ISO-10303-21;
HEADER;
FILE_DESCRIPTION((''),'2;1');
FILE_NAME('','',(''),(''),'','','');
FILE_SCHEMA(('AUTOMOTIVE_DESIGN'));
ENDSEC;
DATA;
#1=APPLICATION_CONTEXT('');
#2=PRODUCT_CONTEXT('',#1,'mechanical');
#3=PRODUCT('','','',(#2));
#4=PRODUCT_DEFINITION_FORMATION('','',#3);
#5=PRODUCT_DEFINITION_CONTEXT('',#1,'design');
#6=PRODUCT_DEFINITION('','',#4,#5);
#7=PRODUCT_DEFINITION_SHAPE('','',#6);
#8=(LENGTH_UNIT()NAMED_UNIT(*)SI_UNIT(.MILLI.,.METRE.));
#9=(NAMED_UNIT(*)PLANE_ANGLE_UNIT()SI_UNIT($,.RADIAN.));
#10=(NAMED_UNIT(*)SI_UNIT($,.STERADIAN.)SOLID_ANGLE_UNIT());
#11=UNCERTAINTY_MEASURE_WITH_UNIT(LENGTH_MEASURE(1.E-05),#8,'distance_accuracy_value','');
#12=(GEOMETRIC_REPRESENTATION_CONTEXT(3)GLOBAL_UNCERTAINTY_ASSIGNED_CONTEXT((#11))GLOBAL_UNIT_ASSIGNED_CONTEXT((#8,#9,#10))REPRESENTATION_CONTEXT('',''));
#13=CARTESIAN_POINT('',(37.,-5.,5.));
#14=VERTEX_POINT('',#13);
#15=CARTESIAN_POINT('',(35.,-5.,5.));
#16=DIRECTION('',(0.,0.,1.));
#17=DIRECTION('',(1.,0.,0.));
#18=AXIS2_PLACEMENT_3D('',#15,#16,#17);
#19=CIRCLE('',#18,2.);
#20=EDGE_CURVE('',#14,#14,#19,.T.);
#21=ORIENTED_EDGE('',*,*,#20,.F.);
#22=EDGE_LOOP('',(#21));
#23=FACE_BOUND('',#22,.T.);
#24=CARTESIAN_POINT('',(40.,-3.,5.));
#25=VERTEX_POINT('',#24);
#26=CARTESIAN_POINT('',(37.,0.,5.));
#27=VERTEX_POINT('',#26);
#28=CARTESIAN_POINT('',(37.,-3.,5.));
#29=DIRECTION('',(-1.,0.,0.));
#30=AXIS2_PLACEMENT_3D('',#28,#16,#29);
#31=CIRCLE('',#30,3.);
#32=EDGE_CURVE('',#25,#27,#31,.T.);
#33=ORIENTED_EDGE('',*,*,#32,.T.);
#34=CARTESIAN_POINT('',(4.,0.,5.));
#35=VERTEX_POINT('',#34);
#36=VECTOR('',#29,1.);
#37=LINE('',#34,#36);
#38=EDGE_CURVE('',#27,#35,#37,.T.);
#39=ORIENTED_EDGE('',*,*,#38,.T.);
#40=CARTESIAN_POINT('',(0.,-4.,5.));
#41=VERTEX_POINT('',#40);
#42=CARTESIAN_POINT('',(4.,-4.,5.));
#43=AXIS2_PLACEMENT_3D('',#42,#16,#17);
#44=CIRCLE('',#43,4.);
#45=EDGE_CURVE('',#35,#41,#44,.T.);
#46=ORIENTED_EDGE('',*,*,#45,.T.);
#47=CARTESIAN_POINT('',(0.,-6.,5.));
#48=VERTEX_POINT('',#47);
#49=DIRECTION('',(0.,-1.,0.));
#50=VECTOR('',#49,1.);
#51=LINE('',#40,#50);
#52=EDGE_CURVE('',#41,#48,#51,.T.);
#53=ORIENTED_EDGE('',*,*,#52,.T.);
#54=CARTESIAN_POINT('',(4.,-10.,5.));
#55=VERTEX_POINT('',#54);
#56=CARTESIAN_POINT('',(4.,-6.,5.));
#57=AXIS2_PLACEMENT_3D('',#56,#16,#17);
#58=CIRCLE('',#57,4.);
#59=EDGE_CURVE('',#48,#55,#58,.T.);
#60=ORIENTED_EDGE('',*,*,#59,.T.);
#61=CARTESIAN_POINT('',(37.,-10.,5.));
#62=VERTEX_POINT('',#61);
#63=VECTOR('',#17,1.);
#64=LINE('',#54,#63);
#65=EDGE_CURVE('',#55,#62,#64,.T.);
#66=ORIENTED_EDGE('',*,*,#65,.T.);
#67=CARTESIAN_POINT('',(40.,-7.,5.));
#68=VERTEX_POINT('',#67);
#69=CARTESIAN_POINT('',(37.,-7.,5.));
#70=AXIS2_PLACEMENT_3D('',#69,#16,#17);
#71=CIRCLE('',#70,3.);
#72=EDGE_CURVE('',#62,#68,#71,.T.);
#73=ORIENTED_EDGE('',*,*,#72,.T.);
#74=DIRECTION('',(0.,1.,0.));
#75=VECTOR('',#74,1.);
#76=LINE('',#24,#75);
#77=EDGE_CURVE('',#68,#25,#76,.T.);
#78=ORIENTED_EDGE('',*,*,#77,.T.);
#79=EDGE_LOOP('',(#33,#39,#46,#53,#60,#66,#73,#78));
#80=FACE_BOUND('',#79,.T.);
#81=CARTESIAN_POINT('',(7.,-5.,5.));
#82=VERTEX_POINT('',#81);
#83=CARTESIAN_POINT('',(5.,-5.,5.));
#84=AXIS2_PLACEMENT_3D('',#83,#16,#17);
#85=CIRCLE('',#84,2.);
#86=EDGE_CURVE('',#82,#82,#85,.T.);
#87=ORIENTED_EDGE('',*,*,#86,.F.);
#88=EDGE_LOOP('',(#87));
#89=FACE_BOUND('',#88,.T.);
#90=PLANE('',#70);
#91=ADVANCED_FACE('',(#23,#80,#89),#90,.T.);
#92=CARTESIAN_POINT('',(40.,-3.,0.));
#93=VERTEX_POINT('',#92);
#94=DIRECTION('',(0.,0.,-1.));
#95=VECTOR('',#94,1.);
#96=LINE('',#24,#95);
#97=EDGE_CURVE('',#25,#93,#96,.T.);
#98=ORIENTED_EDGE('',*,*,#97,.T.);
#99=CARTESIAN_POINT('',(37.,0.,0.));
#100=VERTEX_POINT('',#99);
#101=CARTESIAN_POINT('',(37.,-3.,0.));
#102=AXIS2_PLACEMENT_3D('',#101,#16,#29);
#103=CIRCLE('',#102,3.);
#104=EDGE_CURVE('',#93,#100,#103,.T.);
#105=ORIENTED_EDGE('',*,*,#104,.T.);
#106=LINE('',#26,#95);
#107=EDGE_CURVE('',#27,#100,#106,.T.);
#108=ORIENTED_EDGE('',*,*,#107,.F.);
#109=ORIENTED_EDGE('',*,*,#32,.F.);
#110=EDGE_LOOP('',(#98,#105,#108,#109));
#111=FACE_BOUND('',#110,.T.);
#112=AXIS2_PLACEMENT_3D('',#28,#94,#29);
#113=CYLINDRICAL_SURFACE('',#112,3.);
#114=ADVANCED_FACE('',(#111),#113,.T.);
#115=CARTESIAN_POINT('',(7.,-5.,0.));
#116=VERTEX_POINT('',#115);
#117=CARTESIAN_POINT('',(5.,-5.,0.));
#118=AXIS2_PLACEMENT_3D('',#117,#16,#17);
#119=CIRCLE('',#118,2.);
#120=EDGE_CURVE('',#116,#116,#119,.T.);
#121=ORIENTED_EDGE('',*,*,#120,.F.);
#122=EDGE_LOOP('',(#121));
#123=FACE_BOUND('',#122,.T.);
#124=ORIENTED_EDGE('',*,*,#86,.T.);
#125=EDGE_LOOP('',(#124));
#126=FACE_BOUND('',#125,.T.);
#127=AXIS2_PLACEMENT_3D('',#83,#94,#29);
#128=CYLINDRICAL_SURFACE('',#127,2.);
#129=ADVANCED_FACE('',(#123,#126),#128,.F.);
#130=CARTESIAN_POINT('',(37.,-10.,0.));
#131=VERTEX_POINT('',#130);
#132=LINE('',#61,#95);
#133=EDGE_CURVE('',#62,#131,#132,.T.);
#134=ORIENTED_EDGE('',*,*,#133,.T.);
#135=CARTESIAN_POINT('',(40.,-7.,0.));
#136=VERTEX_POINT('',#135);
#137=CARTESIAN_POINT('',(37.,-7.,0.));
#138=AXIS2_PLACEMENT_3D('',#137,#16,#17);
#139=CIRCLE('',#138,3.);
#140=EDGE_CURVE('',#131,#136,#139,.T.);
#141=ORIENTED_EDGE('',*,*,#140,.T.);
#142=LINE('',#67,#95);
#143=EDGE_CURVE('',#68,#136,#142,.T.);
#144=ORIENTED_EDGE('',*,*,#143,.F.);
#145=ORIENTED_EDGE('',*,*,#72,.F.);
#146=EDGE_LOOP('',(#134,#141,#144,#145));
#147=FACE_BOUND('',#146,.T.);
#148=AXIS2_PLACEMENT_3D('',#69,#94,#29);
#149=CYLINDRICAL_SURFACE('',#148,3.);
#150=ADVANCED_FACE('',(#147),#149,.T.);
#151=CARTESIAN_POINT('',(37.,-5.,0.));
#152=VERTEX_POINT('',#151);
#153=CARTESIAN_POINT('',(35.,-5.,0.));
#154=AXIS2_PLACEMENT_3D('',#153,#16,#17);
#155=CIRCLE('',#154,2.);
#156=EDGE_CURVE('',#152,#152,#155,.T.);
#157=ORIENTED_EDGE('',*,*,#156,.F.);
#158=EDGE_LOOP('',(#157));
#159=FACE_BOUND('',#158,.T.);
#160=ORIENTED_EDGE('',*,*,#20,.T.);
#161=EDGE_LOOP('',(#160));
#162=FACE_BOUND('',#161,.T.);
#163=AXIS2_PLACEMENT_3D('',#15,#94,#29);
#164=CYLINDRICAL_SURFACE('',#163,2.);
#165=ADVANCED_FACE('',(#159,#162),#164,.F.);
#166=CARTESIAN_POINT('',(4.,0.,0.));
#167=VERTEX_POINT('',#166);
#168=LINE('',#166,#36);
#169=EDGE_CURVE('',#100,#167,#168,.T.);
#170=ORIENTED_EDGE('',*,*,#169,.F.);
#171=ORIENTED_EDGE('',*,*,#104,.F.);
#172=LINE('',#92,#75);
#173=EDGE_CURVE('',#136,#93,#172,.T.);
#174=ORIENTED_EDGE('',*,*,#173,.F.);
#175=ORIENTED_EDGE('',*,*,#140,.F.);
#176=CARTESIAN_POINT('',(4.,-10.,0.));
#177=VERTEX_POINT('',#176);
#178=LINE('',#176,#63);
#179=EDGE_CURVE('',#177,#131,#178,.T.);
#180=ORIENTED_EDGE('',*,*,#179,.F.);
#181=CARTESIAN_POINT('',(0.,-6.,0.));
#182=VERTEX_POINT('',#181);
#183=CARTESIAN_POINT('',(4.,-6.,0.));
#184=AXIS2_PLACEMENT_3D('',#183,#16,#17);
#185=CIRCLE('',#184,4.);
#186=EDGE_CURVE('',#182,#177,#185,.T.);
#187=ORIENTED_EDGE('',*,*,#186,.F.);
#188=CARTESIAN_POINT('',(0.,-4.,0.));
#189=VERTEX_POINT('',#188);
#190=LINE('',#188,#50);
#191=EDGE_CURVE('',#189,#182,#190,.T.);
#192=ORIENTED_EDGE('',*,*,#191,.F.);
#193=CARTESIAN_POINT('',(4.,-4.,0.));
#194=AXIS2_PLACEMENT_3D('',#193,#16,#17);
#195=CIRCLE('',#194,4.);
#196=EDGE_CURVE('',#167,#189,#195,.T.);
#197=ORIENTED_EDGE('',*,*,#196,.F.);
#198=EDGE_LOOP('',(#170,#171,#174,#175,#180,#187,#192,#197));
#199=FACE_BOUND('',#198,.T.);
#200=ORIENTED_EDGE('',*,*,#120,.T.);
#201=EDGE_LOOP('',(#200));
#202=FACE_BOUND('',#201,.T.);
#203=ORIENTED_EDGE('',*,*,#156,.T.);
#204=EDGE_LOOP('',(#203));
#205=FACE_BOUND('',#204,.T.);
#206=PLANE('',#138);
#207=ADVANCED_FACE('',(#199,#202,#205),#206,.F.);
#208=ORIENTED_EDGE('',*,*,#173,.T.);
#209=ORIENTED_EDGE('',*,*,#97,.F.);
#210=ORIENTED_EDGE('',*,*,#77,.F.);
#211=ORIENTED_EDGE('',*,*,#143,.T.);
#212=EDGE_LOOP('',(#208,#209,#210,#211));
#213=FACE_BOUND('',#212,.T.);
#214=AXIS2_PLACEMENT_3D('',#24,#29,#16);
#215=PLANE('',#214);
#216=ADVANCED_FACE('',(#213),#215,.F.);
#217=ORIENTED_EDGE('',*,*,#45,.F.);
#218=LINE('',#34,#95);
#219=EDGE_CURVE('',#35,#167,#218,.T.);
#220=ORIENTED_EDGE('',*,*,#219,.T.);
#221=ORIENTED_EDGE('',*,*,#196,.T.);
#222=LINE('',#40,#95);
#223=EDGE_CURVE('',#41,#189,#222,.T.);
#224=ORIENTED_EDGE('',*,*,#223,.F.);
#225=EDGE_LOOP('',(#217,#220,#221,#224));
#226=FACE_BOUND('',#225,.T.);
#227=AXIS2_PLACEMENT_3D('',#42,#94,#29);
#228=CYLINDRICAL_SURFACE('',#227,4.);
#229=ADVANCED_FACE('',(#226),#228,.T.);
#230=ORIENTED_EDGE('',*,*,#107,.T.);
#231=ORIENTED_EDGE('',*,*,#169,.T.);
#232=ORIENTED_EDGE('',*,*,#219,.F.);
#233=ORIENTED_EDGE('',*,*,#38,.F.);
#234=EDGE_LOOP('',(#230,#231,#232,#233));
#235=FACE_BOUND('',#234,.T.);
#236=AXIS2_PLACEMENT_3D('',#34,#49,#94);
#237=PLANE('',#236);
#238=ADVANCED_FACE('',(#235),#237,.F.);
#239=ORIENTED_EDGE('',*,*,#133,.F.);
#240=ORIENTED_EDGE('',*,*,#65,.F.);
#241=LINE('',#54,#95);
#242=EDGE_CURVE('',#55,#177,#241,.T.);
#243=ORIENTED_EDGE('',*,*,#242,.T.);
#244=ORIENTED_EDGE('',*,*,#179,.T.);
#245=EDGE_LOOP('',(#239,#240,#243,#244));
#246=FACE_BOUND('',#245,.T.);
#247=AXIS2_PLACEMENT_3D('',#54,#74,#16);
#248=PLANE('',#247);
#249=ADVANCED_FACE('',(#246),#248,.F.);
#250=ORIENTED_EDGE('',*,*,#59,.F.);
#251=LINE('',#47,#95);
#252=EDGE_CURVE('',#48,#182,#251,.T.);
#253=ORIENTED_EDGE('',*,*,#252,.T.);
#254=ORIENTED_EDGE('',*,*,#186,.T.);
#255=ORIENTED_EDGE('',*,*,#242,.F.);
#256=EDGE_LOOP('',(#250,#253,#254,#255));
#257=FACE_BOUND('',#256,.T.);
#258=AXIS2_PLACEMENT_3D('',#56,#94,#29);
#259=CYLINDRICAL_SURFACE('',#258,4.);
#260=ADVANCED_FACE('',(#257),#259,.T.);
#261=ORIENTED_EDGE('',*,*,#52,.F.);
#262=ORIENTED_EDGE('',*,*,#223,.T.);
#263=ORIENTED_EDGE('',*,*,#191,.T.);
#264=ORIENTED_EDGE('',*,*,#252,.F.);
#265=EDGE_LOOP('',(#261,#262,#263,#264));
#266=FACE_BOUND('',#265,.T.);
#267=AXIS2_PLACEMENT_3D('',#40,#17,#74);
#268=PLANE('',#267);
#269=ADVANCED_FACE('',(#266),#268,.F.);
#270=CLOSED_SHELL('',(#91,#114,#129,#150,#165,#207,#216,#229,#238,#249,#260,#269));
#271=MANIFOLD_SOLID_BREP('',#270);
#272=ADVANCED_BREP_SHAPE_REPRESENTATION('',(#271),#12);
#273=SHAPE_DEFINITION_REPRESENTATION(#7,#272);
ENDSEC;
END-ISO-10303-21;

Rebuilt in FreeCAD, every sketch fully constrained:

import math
import FreeCAD as App
import Part
import Sketcher
from FreeCAD import Vector
Q = App.Units.Quantity

doc = App.newDocument("Part")
body = doc.addObject("PartDesign::Body", "Body")

sketch1 = body.newObject("Sketcher::SketchObject", "Sketch")
sketch1.AttachmentSupport = (doc.getObject("XY_Plane"), [""])
sketch1.MapMode = "FlatFace"
sketch1.addGeometry(Part.LineSegment(Vector(37, 0, 0), Vector(4, 0, 0)), False)
sketch1.addGeometry(Part.ArcOfCircle(Part.Circle(Vector(4, -4, 0), Vector(0, 0, 1), 4), math.radians(90), math.radians(180)), False)
sketch1.addGeometry(Part.LineSegment(Vector(0, -4, 0), Vector(0, -6, 0)), False)
sketch1.addGeometry(Part.ArcOfCircle(Part.Circle(Vector(4, -6, 0), Vector(0, 0, 1), 4), math.radians(180), math.radians(270)), False)
sketch1.addGeometry(Part.LineSegment(Vector(4, -10, 0), Vector(37, -10, 0)), False)
sketch1.addGeometry(Part.ArcOfCircle(Part.Circle(Vector(37, -7, 0), Vector(0, 0, 1), 3), math.radians(-90), math.radians(0)), False)
sketch1.addGeometry(Part.LineSegment(Vector(40, -7, 0), Vector(40, -3, 0)), False)
sketch1.addGeometry(Part.ArcOfCircle(Part.Circle(Vector(37, -3, 0), Vector(0, 0, 1), 3), math.radians(0), math.radians(90)), False)
sketch1.addGeometry(Part.Circle(Vector(35, -5, 0), Vector(0, 0, 1), 2), False)
sketch1.addGeometry(Part.Circle(Vector(5, -5, 0), Vector(0, 0, 1), 2), False)
sketch1.addConstraint(Sketcher.Constraint("Tangent", 0, 2, 1, 1))
sketch1.addConstraint(Sketcher.Constraint("Tangent", 1, 2, 2, 1))
sketch1.addConstraint(Sketcher.Constraint("Tangent", 2, 2, 3, 1))
sketch1.addConstraint(Sketcher.Constraint("Tangent", 3, 2, 4, 1))
sketch1.addConstraint(Sketcher.Constraint("Tangent", 4, 2, 5, 1))
sketch1.addConstraint(Sketcher.Constraint("Tangent", 5, 2, 6, 1))
sketch1.addConstraint(Sketcher.Constraint("Tangent", 6, 2, 7, 1))
sketch1.addConstraint(Sketcher.Constraint("Tangent", 7, 2, 0, 1))
sketch1.addConstraint(Sketcher.Constraint("Horizontal", 0))
sketch1.addConstraint(Sketcher.Constraint("Vertical", 2))
sketch1.addConstraint(Sketcher.Constraint("Horizontal", 4))
sketch1.addConstraint(Sketcher.Constraint("Vertical", 6))
sketch1.addConstraint(Sketcher.Constraint("Equal", 1, 3))
sketch1.addConstraint(Sketcher.Constraint("Equal", 5, 7))
sketch1.addConstraint(Sketcher.Constraint("Equal", 8, 9))
sketch1.addConstraint(Sketcher.Constraint("PointOnObject", 0, 2, -1))
sketch1.addConstraint(Sketcher.Constraint("PointOnObject", 1, 2, -2))
sketch1.addConstraint(Sketcher.Constraint("Horizontal", 8, 3, 9, 3))
sketch1.addConstraint(Sketcher.Constraint("Diameter", 8, Q("4 mm")))
sketch1.addConstraint(Sketcher.Constraint("Radius", 1, Q("4 mm")))
sketch1.addConstraint(Sketcher.Constraint("Radius", 5, Q("3 mm")))
sketch1.addConstraint(Sketcher.Constraint("DistanceX", 0, 2, 0, 1, Q("33 mm")))
sketch1.addConstraint(Sketcher.Constraint("DistanceY", 2, 2, 2, 1, Q("2 mm")))
sketch1.addConstraint(Sketcher.Constraint("DistanceX", -1, 1, 8, 3, Q("35 mm")))
sketch1.addConstraint(Sketcher.Constraint("DistanceY", 8, 3, -1, 1, Q("5 mm")))
sketch1.addConstraint(Sketcher.Constraint("DistanceX", -1, 1, 9, 3, Q("5 mm")))
pad1 = body.newObject("PartDesign::Pad", "Pad")
pad1.Profile = sketch1
pad1.Length = 5

doc.recompute()
